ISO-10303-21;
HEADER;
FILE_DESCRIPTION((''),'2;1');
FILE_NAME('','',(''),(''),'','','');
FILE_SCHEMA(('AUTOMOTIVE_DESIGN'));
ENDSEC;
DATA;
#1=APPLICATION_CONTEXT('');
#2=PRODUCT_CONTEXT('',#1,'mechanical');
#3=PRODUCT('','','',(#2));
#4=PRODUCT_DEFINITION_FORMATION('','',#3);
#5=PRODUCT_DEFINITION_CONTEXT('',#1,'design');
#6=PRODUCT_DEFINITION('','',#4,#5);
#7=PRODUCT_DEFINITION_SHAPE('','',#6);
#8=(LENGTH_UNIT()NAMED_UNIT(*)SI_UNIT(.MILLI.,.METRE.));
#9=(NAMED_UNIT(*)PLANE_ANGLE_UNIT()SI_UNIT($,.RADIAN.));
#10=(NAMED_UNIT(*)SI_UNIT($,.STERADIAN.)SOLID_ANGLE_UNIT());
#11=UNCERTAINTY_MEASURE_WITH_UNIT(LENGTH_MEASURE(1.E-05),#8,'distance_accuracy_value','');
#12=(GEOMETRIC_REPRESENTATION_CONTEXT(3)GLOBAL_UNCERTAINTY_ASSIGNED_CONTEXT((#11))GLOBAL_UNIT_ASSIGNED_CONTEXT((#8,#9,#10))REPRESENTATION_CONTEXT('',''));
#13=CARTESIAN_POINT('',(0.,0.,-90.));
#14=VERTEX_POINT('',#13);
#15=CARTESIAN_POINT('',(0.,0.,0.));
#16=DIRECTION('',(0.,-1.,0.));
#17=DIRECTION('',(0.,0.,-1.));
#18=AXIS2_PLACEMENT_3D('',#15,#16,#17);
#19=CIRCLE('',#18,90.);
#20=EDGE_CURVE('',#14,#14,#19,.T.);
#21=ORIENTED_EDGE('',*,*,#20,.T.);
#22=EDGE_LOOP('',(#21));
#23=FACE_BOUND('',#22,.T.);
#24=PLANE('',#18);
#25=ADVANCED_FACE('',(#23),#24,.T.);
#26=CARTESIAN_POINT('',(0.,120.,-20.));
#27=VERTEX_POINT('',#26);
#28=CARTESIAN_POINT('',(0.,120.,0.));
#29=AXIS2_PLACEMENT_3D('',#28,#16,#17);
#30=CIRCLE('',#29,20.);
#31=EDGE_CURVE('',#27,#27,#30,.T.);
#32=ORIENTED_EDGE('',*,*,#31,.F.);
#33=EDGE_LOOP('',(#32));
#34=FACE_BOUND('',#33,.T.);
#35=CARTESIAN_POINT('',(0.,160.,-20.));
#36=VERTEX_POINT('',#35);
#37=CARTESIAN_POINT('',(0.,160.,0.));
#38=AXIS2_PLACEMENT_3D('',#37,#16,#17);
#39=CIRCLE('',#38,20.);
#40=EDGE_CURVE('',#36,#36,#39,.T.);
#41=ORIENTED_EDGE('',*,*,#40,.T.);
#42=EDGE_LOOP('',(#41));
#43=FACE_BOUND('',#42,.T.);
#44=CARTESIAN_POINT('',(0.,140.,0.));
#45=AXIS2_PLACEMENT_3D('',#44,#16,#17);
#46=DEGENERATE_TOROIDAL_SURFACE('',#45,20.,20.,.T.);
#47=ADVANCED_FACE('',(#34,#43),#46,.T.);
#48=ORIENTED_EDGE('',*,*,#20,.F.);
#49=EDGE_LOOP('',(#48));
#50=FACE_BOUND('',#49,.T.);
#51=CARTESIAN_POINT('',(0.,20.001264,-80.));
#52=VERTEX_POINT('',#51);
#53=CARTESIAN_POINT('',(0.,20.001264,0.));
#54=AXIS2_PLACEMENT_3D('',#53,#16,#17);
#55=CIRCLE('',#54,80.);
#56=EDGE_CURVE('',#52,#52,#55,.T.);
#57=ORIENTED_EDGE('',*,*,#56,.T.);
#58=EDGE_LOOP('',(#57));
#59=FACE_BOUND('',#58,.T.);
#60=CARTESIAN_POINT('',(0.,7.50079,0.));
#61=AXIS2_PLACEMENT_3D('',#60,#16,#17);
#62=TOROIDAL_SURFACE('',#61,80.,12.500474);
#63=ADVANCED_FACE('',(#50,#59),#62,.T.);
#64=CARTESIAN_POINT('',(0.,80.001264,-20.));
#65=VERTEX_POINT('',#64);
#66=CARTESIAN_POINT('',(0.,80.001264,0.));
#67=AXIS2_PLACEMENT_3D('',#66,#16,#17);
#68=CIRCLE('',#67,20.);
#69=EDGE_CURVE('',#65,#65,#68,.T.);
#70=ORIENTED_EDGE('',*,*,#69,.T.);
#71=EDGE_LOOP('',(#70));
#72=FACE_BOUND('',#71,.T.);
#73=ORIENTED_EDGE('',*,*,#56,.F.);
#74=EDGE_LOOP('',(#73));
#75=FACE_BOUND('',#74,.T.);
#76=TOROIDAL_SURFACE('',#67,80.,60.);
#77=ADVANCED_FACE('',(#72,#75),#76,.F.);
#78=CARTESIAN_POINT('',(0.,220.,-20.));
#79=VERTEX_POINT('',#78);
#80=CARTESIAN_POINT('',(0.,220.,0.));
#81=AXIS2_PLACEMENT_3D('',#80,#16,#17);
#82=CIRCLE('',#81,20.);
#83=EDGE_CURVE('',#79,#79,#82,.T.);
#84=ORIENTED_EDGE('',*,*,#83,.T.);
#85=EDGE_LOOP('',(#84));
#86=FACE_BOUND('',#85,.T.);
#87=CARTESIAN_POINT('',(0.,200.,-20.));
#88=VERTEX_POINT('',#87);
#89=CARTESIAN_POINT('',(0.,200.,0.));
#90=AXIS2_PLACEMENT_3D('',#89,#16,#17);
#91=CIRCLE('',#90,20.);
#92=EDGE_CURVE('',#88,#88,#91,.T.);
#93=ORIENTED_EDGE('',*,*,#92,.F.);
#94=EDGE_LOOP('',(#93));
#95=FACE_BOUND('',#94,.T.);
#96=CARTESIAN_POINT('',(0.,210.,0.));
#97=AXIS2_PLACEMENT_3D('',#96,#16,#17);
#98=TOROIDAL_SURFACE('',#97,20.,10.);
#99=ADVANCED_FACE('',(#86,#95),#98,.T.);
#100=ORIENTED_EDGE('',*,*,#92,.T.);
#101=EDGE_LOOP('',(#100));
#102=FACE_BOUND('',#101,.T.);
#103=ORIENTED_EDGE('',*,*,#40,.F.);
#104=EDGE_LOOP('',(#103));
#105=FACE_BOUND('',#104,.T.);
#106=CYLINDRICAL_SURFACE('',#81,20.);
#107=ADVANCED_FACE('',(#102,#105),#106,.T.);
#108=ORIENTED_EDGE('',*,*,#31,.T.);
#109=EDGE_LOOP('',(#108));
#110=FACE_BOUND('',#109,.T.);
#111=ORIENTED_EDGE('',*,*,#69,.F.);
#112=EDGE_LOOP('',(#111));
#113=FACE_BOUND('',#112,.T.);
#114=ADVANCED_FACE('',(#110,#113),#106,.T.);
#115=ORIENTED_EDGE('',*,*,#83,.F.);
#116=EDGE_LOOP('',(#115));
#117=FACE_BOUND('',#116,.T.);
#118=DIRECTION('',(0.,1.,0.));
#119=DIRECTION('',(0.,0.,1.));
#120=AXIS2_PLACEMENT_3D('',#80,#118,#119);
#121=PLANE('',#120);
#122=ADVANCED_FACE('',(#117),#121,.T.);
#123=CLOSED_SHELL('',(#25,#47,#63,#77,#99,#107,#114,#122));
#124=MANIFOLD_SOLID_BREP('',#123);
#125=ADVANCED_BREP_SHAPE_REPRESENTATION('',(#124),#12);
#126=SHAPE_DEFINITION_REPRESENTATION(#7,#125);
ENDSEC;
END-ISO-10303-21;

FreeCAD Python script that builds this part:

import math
import FreeCAD as App
import Part
import Sketcher

doc = App.newDocument("Part")
params = doc.addObject("Spreadsheet::Sheet", "Params")
for row, (alias, value) in enumerate([
    ("sketch1_radius", "60 mm"),
    ("sketch1_radius2", "20 mm"),
    ("sketch1_radius3", "10 mm"),
    ("sketch1_width", "90 mm"),
    ("sketch1_width2", "20 mm"),
    ("revolution_angle", "360 deg"),
], start=1):
    params.set(f"A{row}", alias)
    params.set(f"B{row}", "=" + value)
    params.setAlias(f"B{row}", alias)

body = doc.addObject("PartDesign::Body", "Body")

sketch1 = doc.addObject("Sketcher::SketchObject", "Sketch")
body.addObject(sketch1)
sketch1.AttachmentSupport = (doc.XY_Plane, [""])
sketch1.MapMode = "FlatFace"
sketch1.addGeometry([
    Part.LineSegment(App.Vector(0, 220, 0), App.Vector(0, 0, 0)),
    Part.LineSegment(App.Vector(0, 0, 0), App.Vector(90, 0, 0)),
    Part.ArcOfCircle(Part.Circle(App.Vector(80, 8, 0), App.Vector(0, 0, 1), 13), math.radians(-37), math.radians(90)),
    Part.ArcOfCircle(Part.Circle(App.Vector(80, 80, 0), App.Vector(0, 0, 1), 60), math.radians(-180), math.radians(-90)),
    Part.LineSegment(App.Vector(20, 80, 0), App.Vector(20, 120, 0)),
    Part.ArcOfCircle(Part.Circle(App.Vector(20, 140, 0), App.Vector(0, 0, 1), 20), math.radians(-90), math.radians(90)),
    Part.LineSegment(App.Vector(20, 160, 0), App.Vector(20, 200, 0)),
    Part.ArcOfCircle(Part.Circle(App.Vector(20, 210, 0), App.Vector(0, 0, 1), 10), math.radians(-90), math.radians(90)),
    Part.LineSegment(App.Vector(20, 220, 0), App.Vector(0, 220, 0)),
], False)
sketch1.addConstraint([
    Sketcher.Constraint("Coincident", 0, 2, 1, 1),
    Sketcher.Constraint("Coincident", 1, 2, 2, 1),
    Sketcher.Constraint("Tangent", 2, 2, 3, 2),
    Sketcher.Constraint("Tangent", 3, 1, 4, 1),
    Sketcher.Constraint("Coincident", 4, 2, 5, 1),
    Sketcher.Constraint("Coincident", 5, 2, 6, 1),
    Sketcher.Constraint("Coincident", 6, 2, 7, 1),
    Sketcher.Constraint("Tangent", 7, 2, 8, 1),
    Sketcher.Constraint("Coincident", 8, 2, 0, 1),
    Sketcher.Constraint("Vertical", 0),
    Sketcher.Constraint("Horizontal", 1),
    Sketcher.Constraint("Vertical", 4),
    Sketcher.Constraint("Vertical", 6),
    Sketcher.Constraint("Horizontal", 8),
    Sketcher.Constraint("Coincident", 0, 2, -1, 1),
    Sketcher.Constraint("Vertical", 2, 3, 3, 3),
    Sketcher.Constraint("Vertical", 5, 3, 7, 3),
    Sketcher.Constraint("Vertical", 7, 3, 3, 1),
    Sketcher.Constraint("Vertical", 4, 2, 5, 2),
    Sketcher.Constraint("Radius", 3, 60.0),
    Sketcher.Constraint("Radius", 5, 20.0),
    Sketcher.Constraint("Radius", 7, 10.0),
    Sketcher.Constraint("DistanceX", 1, 1, 1, 2, 90.0),
    Sketcher.Constraint("DistanceX", 8, 2, 8, 1, 20.0),
    Sketcher.Constraint("DistanceY", 0, 2, 0, 1, 220.0),
    Sketcher.Constraint("DistanceY", 6, 1, 6, 2, 40.0),
    Sketcher.Constraint("Radius", 2, 12.500474),
])
sketch1.setExpression("Constraints[19]", "Params.sketch1_radius")
sketch1.setExpression("Constraints[20]", "Params.sketch1_radius2")
sketch1.setExpression("Constraints[21]", "Params.sketch1_radius3")
sketch1.setExpression("Constraints[22]", "Params.sketch1_width")
sketch1.setExpression("Constraints[23]", "Params.sketch1_width2")
revolution = doc.addObject("PartDesign::Revolution", "Revolution")
body.addObject(revolution)
revolution.Profile = sketch1
revolution.ReferenceAxis = (sketch1, ["V_Axis"])
revolution.setExpression("Angle", "Params.revolution_angle")

doc.recompute()
